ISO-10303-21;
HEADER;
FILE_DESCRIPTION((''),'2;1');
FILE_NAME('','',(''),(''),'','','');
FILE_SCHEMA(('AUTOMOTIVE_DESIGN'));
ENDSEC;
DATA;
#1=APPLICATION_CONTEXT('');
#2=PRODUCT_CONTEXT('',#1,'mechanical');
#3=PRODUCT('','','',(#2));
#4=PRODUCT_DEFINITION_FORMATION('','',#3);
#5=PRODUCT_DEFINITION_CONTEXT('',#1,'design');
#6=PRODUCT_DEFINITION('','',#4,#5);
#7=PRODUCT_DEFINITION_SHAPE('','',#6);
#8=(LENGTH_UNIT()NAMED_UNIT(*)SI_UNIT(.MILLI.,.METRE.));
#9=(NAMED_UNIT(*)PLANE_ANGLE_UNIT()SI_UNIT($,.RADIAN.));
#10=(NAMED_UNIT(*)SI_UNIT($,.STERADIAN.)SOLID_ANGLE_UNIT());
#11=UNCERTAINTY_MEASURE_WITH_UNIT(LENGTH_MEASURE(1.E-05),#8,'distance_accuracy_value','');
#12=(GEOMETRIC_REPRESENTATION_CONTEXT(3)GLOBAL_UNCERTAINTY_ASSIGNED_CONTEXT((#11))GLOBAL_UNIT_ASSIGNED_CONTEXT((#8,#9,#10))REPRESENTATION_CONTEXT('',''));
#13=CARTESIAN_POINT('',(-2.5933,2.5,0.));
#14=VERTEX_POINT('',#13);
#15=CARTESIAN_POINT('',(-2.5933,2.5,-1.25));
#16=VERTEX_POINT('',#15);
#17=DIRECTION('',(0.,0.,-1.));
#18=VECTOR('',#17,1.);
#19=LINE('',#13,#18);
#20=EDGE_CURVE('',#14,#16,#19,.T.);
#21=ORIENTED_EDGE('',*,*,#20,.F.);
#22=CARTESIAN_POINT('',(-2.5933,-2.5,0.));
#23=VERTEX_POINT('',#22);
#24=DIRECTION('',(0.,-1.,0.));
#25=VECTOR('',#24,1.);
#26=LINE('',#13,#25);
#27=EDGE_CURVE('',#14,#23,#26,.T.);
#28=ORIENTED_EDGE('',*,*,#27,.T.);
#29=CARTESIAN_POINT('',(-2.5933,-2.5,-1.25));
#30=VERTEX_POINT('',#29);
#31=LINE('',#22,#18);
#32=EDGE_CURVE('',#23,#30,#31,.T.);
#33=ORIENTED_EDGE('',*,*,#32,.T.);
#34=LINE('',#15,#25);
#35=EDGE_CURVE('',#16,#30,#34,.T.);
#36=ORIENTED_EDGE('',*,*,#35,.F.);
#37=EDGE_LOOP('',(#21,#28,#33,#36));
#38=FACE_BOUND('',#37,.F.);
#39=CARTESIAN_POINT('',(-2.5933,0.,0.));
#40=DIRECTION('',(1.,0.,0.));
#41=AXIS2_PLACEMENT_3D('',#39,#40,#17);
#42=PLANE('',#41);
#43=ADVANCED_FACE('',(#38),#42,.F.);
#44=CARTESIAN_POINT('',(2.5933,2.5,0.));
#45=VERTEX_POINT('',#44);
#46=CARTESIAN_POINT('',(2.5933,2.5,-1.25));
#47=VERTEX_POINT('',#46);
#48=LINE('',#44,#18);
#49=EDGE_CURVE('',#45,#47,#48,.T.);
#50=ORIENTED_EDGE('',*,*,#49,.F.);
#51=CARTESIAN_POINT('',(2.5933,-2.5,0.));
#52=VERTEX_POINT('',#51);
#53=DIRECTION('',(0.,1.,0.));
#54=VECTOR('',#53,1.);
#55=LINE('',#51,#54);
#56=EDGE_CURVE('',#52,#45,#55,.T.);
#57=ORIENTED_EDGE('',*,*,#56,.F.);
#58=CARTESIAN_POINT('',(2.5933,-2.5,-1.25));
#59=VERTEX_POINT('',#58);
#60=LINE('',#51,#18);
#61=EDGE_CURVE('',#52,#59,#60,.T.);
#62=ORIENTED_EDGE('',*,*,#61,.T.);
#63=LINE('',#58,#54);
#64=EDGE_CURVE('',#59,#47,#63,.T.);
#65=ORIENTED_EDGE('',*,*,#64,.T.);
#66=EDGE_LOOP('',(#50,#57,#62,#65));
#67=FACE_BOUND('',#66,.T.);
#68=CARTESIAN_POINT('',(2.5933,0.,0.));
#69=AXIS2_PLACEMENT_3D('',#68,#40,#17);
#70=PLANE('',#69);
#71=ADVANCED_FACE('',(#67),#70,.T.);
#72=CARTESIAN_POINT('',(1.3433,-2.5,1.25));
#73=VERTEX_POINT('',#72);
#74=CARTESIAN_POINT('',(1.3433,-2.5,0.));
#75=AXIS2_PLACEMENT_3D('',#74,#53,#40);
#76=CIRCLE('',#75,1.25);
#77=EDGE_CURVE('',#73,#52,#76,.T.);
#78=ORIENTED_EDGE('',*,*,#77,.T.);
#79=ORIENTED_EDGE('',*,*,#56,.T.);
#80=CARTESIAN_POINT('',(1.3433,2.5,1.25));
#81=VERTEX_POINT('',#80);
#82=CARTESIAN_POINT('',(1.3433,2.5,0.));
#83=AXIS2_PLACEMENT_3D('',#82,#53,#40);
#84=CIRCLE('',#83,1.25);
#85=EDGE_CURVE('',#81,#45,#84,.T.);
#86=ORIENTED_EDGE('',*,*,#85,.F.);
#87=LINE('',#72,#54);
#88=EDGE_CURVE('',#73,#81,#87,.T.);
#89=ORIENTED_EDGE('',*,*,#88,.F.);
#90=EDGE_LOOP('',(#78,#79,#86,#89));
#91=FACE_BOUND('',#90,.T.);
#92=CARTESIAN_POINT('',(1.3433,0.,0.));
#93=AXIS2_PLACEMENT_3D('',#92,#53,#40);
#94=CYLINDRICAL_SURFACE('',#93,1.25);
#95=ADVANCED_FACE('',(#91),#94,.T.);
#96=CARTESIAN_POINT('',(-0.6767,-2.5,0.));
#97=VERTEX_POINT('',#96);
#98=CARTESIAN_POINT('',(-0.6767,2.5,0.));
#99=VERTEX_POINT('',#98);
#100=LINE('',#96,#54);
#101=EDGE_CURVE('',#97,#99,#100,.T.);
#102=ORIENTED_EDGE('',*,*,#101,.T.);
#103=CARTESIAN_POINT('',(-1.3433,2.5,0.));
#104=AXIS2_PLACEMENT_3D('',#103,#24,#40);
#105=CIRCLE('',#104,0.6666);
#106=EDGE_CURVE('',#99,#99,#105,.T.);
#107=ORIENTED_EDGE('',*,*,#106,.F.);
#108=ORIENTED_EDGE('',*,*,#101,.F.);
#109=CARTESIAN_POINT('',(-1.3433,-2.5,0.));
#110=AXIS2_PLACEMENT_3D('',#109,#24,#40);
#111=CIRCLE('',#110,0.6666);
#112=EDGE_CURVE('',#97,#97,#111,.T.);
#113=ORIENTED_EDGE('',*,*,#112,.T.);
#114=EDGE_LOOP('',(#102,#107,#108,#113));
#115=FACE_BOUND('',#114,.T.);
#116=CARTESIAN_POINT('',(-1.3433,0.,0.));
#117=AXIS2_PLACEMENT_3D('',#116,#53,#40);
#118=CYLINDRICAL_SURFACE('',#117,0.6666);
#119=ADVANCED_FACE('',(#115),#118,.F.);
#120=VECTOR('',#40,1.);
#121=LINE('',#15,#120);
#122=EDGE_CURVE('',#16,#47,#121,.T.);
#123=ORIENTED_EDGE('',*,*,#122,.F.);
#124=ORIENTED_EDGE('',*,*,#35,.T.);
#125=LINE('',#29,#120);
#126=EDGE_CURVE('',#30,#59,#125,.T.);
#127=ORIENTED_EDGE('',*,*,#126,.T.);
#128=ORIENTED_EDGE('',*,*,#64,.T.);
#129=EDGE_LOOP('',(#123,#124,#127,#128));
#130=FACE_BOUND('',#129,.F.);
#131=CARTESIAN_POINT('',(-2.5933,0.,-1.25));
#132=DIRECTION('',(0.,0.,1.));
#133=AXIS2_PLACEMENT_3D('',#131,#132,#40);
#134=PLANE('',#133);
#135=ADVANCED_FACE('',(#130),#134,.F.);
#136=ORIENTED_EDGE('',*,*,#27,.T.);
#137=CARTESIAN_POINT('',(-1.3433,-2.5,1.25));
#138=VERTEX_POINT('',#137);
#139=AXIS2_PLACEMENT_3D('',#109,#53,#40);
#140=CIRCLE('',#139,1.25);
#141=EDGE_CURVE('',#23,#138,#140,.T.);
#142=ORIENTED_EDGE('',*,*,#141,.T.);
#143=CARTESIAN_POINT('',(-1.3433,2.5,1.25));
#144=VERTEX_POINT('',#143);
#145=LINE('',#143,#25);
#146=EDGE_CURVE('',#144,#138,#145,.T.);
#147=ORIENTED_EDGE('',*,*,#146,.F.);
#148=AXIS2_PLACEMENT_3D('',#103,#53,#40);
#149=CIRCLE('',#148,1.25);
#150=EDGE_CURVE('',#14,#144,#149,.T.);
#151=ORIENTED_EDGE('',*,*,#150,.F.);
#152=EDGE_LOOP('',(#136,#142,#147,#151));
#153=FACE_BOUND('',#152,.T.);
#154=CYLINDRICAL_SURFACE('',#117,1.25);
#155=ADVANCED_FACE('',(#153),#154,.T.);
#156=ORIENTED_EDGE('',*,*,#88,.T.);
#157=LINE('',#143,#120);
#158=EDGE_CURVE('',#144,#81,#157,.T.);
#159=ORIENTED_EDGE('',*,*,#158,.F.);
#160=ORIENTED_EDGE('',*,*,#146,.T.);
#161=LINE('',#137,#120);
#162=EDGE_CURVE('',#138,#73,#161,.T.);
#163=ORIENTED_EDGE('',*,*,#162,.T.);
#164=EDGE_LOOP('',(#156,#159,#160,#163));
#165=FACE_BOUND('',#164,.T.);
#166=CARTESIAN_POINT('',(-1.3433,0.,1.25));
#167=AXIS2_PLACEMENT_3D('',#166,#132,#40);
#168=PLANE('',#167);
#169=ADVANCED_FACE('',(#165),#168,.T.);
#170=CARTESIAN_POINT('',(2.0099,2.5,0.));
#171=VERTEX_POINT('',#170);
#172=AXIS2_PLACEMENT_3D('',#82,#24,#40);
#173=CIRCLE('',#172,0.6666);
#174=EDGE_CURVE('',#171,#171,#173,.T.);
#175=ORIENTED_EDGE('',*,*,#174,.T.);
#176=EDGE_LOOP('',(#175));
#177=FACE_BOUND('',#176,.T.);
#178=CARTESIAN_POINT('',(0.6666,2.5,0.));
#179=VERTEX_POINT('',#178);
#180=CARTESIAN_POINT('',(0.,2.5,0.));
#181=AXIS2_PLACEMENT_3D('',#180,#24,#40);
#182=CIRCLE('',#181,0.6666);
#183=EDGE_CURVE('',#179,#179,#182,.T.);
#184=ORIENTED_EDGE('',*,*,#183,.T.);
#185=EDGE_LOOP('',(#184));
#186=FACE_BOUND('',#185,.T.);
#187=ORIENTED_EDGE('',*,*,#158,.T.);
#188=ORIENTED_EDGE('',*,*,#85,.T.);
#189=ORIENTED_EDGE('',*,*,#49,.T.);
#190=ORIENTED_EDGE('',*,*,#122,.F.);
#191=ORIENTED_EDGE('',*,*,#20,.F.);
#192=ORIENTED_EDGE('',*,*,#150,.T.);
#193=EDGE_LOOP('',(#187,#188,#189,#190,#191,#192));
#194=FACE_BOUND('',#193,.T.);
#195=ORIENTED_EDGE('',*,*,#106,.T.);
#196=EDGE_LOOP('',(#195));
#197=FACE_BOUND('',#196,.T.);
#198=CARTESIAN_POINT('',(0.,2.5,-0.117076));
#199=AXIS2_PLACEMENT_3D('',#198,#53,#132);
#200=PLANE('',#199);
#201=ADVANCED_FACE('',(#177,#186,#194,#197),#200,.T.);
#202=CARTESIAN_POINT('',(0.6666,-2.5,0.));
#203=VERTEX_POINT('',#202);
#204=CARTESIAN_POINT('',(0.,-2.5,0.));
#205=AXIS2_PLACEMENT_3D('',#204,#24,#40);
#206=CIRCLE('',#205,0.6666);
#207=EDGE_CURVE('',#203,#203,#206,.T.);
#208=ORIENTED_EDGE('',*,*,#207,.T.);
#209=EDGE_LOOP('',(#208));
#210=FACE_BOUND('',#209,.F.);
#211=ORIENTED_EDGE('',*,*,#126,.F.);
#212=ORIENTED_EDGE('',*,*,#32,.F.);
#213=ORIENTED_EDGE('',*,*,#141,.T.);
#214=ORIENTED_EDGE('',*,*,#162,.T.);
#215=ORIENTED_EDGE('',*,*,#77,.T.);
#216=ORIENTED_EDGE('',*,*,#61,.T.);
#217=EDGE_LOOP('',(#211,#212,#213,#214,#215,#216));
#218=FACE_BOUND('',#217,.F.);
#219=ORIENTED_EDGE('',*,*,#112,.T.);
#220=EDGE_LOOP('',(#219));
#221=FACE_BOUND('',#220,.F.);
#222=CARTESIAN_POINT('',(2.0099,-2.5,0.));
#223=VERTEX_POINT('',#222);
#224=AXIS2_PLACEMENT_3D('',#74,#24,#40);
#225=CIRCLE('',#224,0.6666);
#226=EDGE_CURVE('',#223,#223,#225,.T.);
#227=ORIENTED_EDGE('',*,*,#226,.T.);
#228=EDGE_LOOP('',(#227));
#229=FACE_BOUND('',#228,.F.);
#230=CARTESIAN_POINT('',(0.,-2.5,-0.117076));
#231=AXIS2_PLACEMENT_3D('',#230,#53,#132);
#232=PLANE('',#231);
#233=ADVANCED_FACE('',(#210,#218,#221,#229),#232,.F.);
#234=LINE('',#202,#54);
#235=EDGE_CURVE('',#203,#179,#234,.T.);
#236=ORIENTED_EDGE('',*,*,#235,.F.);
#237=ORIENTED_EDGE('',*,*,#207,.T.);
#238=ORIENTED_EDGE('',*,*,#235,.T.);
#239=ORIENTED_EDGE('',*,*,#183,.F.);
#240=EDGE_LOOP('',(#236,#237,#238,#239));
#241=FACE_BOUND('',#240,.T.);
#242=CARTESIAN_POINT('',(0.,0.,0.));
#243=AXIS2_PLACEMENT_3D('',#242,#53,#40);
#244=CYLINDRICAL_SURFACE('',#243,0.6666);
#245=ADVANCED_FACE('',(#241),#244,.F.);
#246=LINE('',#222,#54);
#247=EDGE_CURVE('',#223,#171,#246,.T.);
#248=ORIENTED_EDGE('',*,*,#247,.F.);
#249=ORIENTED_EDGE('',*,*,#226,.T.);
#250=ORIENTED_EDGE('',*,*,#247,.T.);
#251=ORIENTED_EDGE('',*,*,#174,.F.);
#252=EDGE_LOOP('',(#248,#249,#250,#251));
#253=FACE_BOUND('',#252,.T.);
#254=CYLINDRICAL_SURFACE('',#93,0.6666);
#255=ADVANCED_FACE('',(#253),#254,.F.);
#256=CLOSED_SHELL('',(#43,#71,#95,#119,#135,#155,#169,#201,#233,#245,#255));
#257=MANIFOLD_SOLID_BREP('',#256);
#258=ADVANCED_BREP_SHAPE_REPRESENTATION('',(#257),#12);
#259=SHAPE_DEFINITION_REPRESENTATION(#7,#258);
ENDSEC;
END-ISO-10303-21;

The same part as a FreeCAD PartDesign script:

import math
import FreeCAD as App
import Part
import Sketcher

V = App.Vector
Q = App.Units.Quantity

doc = App.newDocument("Part")
body = doc.addObject("PartDesign::Body", "Body")

sketch1 = body.newObject("Sketcher::SketchObject", "Sketch")
sketch1.AttachmentSupport = (doc.getObject("XZ_Plane"), [""])
sketch1.MapMode = "FlatFace"
sketch1.addGeometry([
    Part.LineSegment(V(1.3, 1.2, 0), V(-1.3, 1.2, 0)),
    Part.ArcOfCircle(Part.Circle(V(-1.3, 0, 0), V(0, 0, 1), 1.3), math.radians(90), math.radians(180)),
    Part.LineSegment(V(-2.6, 0, 0), V(-2.6, -1.2, 0)),
    Part.LineSegment(V(-2.6, -1.2, 0), V(2.6, -1.2, 0)),
    Part.LineSegment(V(2.6, -1.2, 0), V(2.6, 0, 0)),
    Part.ArcOfCircle(Part.Circle(V(1.3, 0, 0), V(0, 0, 1), 1.2), math.radians(0), math.radians(90)),
    Part.Circle(V(-1.3, 0, 0), V(0, 0, 1), 0.7),
    Part.Circle(V(0, 0, 0), V(0, 0, 1), 0.7),
    Part.Circle(V(1.3, 0, 0), V(0, 0, 1), 0.7),
], False)
sketch1.addConstraint([
    Sketcher.Constraint("Tangent", 0, 2, 1, 1),
    Sketcher.Constraint("Tangent", 1, 2, 2, 1),
    Sketcher.Constraint("Coincident", 2, 2, 3, 1),
    Sketcher.Constraint("Coincident", 3, 2, 4, 1),
    Sketcher.Constraint("Tangent", 4, 2, 5, 1),
    Sketcher.Constraint("Tangent", 5, 2, 0, 1),
    Sketcher.Constraint("Horizontal", 0),
    Sketcher.Constraint("Vertical", 2),
    Sketcher.Constraint("Horizontal", 3),
    Sketcher.Constraint("Vertical", 4),
    Sketcher.Constraint("Coincident", 7, 3, -1, 1),
    Sketcher.Constraint("Coincident", 6, 3, 1, 3),
    Sketcher.Constraint("Coincident", 8, 3, 5, 3),
    Sketcher.Constraint("Equal", 1, 5),
    Sketcher.Constraint("Equal", 6, 7),
    Sketcher.Constraint("Equal", 7, 8),
    Sketcher.Constraint("Symmetric", 1, 3, 5, 3, -1, 1),
    Sketcher.Constraint("Radius", 1, Q("1.25 mm")),
    Sketcher.Constraint("Diameter", 6, Q("1.3332 mm")),
    Sketcher.Constraint("DistanceY", 2, 2, 2, 1, Q("1.25 mm")),
    Sketcher.Constraint("DistanceX", 0, 2, 0, 1, Q("2.6866 mm")),
])
pad1 = body.newObject("PartDesign::Pad", "Pad")
pad1.Profile = sketch1
pad1.Length = 5
pad1.Midplane = True

doc.recompute()
